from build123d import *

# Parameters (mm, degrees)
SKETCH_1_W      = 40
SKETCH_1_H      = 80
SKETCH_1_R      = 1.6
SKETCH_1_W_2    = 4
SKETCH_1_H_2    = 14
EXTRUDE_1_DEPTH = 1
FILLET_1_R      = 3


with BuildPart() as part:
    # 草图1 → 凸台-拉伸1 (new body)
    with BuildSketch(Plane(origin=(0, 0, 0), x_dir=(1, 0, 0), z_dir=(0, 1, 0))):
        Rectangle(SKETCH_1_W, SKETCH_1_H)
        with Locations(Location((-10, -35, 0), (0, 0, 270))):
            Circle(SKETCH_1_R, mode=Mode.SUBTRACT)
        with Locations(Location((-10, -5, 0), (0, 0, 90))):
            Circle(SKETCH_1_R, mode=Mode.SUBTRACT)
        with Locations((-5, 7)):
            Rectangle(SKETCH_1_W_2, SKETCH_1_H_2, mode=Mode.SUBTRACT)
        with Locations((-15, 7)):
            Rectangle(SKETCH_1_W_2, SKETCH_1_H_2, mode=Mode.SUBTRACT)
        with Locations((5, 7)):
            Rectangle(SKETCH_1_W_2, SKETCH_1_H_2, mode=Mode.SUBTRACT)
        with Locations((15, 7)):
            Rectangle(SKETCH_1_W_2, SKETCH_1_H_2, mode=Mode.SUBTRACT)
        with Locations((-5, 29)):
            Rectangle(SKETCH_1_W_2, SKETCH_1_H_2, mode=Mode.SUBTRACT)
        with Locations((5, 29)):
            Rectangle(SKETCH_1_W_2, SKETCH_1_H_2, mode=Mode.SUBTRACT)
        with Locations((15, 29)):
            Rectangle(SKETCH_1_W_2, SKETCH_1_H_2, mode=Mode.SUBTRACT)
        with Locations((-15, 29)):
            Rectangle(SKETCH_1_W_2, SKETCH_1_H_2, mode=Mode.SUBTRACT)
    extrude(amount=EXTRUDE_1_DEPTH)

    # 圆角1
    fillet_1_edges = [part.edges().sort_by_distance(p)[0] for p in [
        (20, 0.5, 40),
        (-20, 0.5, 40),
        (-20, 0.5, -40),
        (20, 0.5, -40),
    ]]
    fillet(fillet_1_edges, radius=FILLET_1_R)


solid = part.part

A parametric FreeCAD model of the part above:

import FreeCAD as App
import Part
import Sketcher
Q = App.Units.Quantity


def edges_at(feature, points):
    """Names of the edges that pass closest to the given points."""
    edges = feature.Shape.Edges
    near = lambda p: min(range(len(edges)), key=lambda i: edges[i].distToShape(Part.Vertex(*p))[0])
    return sorted({f"Edge{near(p) + 1}" for p in points})

doc = App.newDocument("Part")
body = doc.addObject("PartDesign::Body", "Body")

sketch1 = body.newObject("Sketcher::SketchObject", "Sketch")
sketch1.AttachmentSupport = (doc.getObject("XZ_Plane"), [""])
sketch1.MapMode = "FlatFace"
sketch1.addGeometry([
    Part.LineSegment(App.Vector(-20, -40, 0), App.Vector(-20, 40, 0)),
    Part.LineSegment(App.Vector(-20, 40, 0), App.Vector(20, 40, 0)),
    Part.LineSegment(App.Vector(20, 40, 0), App.Vector(20, -40, 0)),
    Part.LineSegment(App.Vector(20, -40, 0), App.Vector(-20, -40, 0)),
    Part.Circle(App.Vector(-10, 35, 0), App.Vector(0, 0, 1), 1.6),
    Part.Circle(App.Vector(-10, 5, 0), App.Vector(0, 0, 1), 1.6),
    Part.LineSegment(App.Vector(-13, 0, 0), App.Vector(-17, 0, 0)),
    Part.LineSegment(App.Vector(-17, 0, 0), App.Vector(-17, -14, 0)),
    Part.LineSegment(App.Vector(-17, -14, 0), App.Vector(-13, -14, 0)),
    Part.LineSegment(App.Vector(-13, -14, 0), App.Vector(-13, 0, 0)),
    Part.LineSegment(App.Vector(-3, 0, 0), App.Vector(-7, 0, 0)),
    Part.LineSegment(App.Vector(-7, 0, 0), App.Vector(-7, -14, 0)),
    Part.LineSegment(App.Vector(-7, -14, 0), App.Vector(-3, -14, 0)),
    Part.LineSegment(App.Vector(-3, -14, 0), App.Vector(-3, 0, 0)),
    Part.LineSegment(App.Vector(-13, -22, 0), App.Vector(-17, -22, 0)),
    Part.LineSegment(App.Vector(-17, -22, 0), App.Vector(-17, -36, 0)),
    Part.LineSegment(App.Vector(-17, -36, 0), App.Vector(-13, -36, 0)),
    Part.LineSegment(App.Vector(-13, -36, 0), App.Vector(-13, -22, 0)),
    Part.LineSegment(App.Vector(-3, -22, 0), App.Vector(-7, -22, 0)),
    Part.LineSegment(App.Vector(-7, -22, 0), App.Vector(-7, -36, 0)),
    Part.LineSegment(App.Vector(-7, -36, 0), App.Vector(-3, -36, 0)),
    Part.LineSegment(App.Vector(-3, -36, 0), App.Vector(-3, -22, 0)),
    Part.LineSegment(App.Vector(7, 0, 0), App.Vector(3, 0, 0)),
    Part.LineSegment(App.Vector(3, 0, 0), App.Vector(3, -14, 0)),
    Part.LineSegment(App.Vector(3, -14, 0), App.Vector(7, -14, 0)),
    Part.LineSegment(App.Vector(7, -14, 0), App.Vector(7, 0, 0)),
    Part.LineSegment(App.Vector(17, 0, 0), App.Vector(13, 0, 0)),
    Part.LineSegment(App.Vector(13, 0, 0), App.Vector(13, -14, 0)),
    Part.LineSegment(App.Vector(13, -14, 0), App.Vector(17, -14, 0)),
    Part.LineSegment(App.Vector(17, -14, 0), App.Vector(17, 0, 0)),
    Part.LineSegment(App.Vector(7, -22, 0), App.Vector(3, -22, 0)),
    Part.LineSegment(App.Vector(3, -22, 0), App.Vector(3, -36, 0)),
    Part.LineSegment(App.Vector(3, -36, 0), App.Vector(7, -36, 0)),
    Part.LineSegment(App.Vector(7, -36, 0), App.Vector(7, -22, 0)),
    Part.LineSegment(App.Vector(17, -22, 0), App.Vector(13, -22, 0)),
    Part.LineSegment(App.Vector(13, -22, 0), App.Vector(13, -36, 0)),
    Part.LineSegment(App.Vector(13, -36, 0), App.Vector(17, -36, 0)),
    Part.LineSegment(App.Vector(17, -36, 0), App.Vector(17, -22, 0)),
], False)
sketch1.addConstraint([
    Sketcher.Constraint("Coincident", 0, 2, 1, 1),
    Sketcher.Constraint("Coincident", 1, 2, 2, 1),
    Sketcher.Constraint("Coincident", 2, 2, 3, 1),
    Sketcher.Constraint("Coincident", 3, 2, 0, 1),
    Sketcher.Constraint("Coincident", 6, 2, 7, 1),
    Sketcher.Constraint("Coincident", 7, 2, 8, 1),
    Sketcher.Constraint("Coincident", 8, 2, 9, 1),
    Sketcher.Constraint("Coincident", 9, 2, 6, 1),
    Sketcher.Constraint("Coincident", 10, 2, 11, 1),
    Sketcher.Constraint("Coincident", 11, 2, 12, 1),
    Sketcher.Constraint("Coincident", 12, 2, 13, 1),
    Sketcher.Constraint("Coincident", 13, 2, 10, 1),
    Sketcher.Constraint("Coincident", 14, 2, 15, 1),
    Sketcher.Constraint("Coincident", 15, 2, 16, 1),
    Sketcher.Constraint("Coincident", 16, 2, 17, 1),
    Sketcher.Constraint("Coincident", 17, 2, 14, 1),
    Sketcher.Constraint("Coincident", 18, 2, 19, 1),
    Sketcher.Constraint("Coincident", 19, 2, 20, 1),
    Sketcher.Constraint("Coincident", 20, 2, 21, 1),
    Sketcher.Constraint("Coincident", 21, 2, 18, 1),
    Sketcher.Constraint("Coincident", 22, 2, 23, 1),
    Sketcher.Constraint("Coincident", 23, 2, 24, 1),
    Sketcher.Constraint("Coincident", 24, 2, 25, 1),
    Sketcher.Constraint("Coincident", 25, 2, 22, 1),
    Sketcher.Constraint("Coincident", 26, 2, 27, 1),
    Sketcher.Constraint("Coincident", 27, 2, 28, 1),
    Sketcher.Constraint("Coincident", 28, 2, 29, 1),
    Sketcher.Constraint("Coincident", 29, 2, 26, 1),
    Sketcher.Constraint("Coincident", 30, 2, 31, 1),
    Sketcher.Constraint("Coincident", 31, 2, 32, 1),
    Sketcher.Constraint("Coincident", 32, 2, 33, 1),
    Sketcher.Constraint("Coincident", 33, 2, 30, 1),
    Sketcher.Constraint("Coincident", 34, 2, 35, 1),
    Sketcher.Constraint("Coincident", 35, 2, 36, 1),
    Sketcher.Constraint("Coincident", 36, 2, 37, 1),
    Sketcher.Constraint("Coincident", 37, 2, 34, 1),
    Sketcher.Constraint("Vertical", 0),
    Sketcher.Constraint("Horizontal", 1),
    Sketcher.Constraint("Vertical", 2),
    Sketcher.Constraint("Horizontal", 3),
    Sketcher.Constraint("Horizontal", 6),
    Sketcher.Constraint("Vertical", 7),
    Sketcher.Constraint("Horizontal", 8),
    Sketcher.Constraint("Vertical", 9),
    Sketcher.Constraint("Horizontal", 10),
    Sketcher.Constraint("Vertical", 11),
    Sketcher.Constraint("Horizontal", 12),
    Sketcher.Constraint("Vertical", 13),
    Sketcher.Constraint("Horizontal", 14),
    Sketcher.Constraint("Vertical", 15),
    Sketcher.Constraint("Horizontal", 16),
    Sketcher.Constraint("Vertical", 17),
    Sketcher.Constraint("Horizontal", 18),
    Sketcher.Constraint("Vertical", 19),
    Sketcher.Constraint("Horizontal", 20),
    Sketcher.Constraint("Vertical", 21),
    Sketcher.Constraint("Horizontal", 22),
    Sketcher.Constraint("Vertical", 23),
    Sketcher.Constraint("Horizontal", 24),
    Sketcher.Constraint("Vertical", 25),
    Sketcher.Constraint("Horizontal", 26),
    Sketcher.Constraint("Vertical", 27),
    Sketcher.Constraint("Horizontal", 28),
    Sketcher.Constraint("Vertical", 29),
    Sketcher.Constraint("Horizontal", 30),
    Sketcher.Constraint("Vertical", 31),
    Sketcher.Constraint("Horizontal", 32),
    Sketcher.Constraint("Vertical", 33),
    Sketcher.Constraint("Horizontal", 34),
    Sketcher.Constraint("Vertical", 35),
    Sketcher.Constraint("Horizontal", 36),
    Sketcher.Constraint("Vertical", 37),
    Sketcher.Constraint("Equal", 4, 5),
    Sketcher.Constraint("Symmetric", 0, 2, 2, 2, -1, 1),
    Sketcher.Constraint("Symmetric", 13, 2, 22, 2, -1, 1),
    Sketcher.Constraint("Symmetric", 9, 2, 26, 2, -1, 1),
    Sketcher.Constraint("Symmetric", 11, 2, 24, 2, -2),
    Sketcher.Constraint("Symmetric", 7, 2, 28, 2, -2),
    Sketcher.Constraint("Symmetric", 21, 2, 30, 2, -2),
    Sketcher.Constraint("Symmetric", 19, 2, 32, 2, -2),
    Sketcher.Constraint("Symmetric", 17, 2, 34, 2, -2),
    Sketcher.Constraint("Symmetric", 15, 2, 36, 2, -2),
    Sketcher.Constraint("PointOnObject", 6, 2, -1),
    Sketcher.Constraint("PointOnObject", 10, 2, -1),
    Sketcher.Constraint("Horizontal", 8, 2, 11, 2),
    Sketcher.Constraint("Horizontal", 17, 2, 18, 2),
    Sketcher.Constraint("Horizontal", 16, 2, 19, 2),
    Sketcher.Constraint("Vertical", 4, 3, 5, 3),
    Sketcher.Constraint("Vertical", 7, 2, 14, 2),
    Sketcher.Constraint("Vertical", 9, 2, 16, 2),
    Sketcher.Constraint("Vertical", 11, 2, 18, 2),
    Sketcher.Constraint("Vertical", 13, 2, 20, 2),
    Sketcher.Constraint("Equal", 8, 10),
    Sketcher.Constraint("Equal", 13, 15),
    Sketcher.Constraint("Diameter", 4, Q("3.2 mm")),
    Sketcher.Constraint("DistanceX", 1, 1, 1, 2, Q("40 mm")),
    Sketcher.Constraint("DistanceX", 6, 2, 6, 1, Q("4 mm")),
    Sketcher.Constraint("DistanceY", 0, 1, 0, 2, Q("80 mm")),
    Sketcher.Constraint("DistanceY", 7, 2, 7, 1, Q("14 mm")),
    Sketcher.Constraint("DistanceX", 4, 3, -1, 1, Q("10 mm")),
    Sketcher.Constraint("DistanceY", -1, 1, 4, 3, Q("35 mm")),
    Sketcher.Constraint("DistanceY", -1, 1, 5, 3, Q("5 mm")),
    Sketcher.Constraint("DistanceX", 6, 2, -1, 1, Q("17 mm")),
    Sketcher.Constraint("DistanceX", 10, 2, -1, 1, Q("7 mm")),
    Sketcher.Constraint("DistanceY", 14, 2, -1, 1, Q("22 mm")),
])
pad1 = body.newObject("PartDesign::Pad", "Pad")
pad1.Profile = sketch1
pad1.Length = 1
pad1.Reversed = True
doc.recompute()

fillet = body.newObject("PartDesign::Fillet", "Fillet")
fillet.Base = (pad1, edges_at(pad1, [
    (20, 0.5, 40),
    (-20, 0.5, 40),
    (-20, 0.5, -40),
    (20, 0.5, -40),
]))
fillet.Radius = 3

doc.recompute()
